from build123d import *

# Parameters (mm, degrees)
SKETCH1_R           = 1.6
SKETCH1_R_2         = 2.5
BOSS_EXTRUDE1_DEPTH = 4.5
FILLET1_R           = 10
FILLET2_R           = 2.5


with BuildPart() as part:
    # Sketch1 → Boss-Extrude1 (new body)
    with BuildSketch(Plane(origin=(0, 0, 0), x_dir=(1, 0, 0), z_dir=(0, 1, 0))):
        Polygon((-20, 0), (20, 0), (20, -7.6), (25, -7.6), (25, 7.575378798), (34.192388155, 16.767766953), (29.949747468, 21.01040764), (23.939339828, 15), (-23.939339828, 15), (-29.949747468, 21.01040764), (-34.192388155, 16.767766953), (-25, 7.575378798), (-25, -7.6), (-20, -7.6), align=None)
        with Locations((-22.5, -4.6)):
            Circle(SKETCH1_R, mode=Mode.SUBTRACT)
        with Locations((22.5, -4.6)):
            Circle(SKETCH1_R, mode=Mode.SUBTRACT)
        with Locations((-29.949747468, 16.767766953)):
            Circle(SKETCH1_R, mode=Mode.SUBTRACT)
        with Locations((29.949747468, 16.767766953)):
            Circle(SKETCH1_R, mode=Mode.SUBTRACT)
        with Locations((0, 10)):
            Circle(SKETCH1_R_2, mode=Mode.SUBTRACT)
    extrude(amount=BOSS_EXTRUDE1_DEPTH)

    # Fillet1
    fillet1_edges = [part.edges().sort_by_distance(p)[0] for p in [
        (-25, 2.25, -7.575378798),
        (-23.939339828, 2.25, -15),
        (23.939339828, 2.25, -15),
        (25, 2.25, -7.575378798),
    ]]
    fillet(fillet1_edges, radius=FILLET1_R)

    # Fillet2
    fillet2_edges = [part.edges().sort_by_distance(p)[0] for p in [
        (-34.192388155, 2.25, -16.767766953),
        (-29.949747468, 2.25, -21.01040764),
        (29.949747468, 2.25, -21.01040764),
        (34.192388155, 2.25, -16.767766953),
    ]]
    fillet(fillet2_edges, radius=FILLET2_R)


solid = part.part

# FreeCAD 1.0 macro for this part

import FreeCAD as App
import Part
import Sketcher

V = App.Vector


def edges_at(feature, points):
    """Names of the edges that pass closest to the given points."""
    edges = feature.Shape.Edges
    near = lambda p: min(range(len(edges)), key=lambda i: edges[i].distToShape(Part.Vertex(*p))[0])
    return sorted({f"Edge{near(p) + 1}" for p in points})


def add_polygon(sketch, points):
    """Adds a closed chain of lines whose ends are joined by coincident constraints."""
    first, n = sketch.GeometryCount, len(points)
    for a, b in zip(points, points[1:] + points[:1]):
        sketch.addGeometry(Part.LineSegment(App.Vector(*a, 0), App.Vector(*b, 0)), False)
    for i in range(n):
        sketch.addConstraint(Sketcher.Constraint("Coincident", first + i, 2, first + (i + 1) % n, 1))

doc = App.newDocument("Part")
body = doc.addObject("PartDesign::Body", "Body")

sketch1 = body.newObject("Sketcher::SketchObject", "Sketch")
sketch1.AttachmentSupport = (doc.getObject("XZ_Plane"), [""])
sketch1.MapMode = "FlatFace"
add_polygon(sketch1, [(-20, 0), (20, 0), (20, 7.6), (25, 7.6), (25, -7.6), (34.2, -16.8), (29.9, -21), (23.9, -15), (-23.9, -15), (-29.9, -21), (-34.2, -16.8), (-25, -7.6), (-25, 7.6), (-20, 7.6)])
sketch1.addGeometry(Part.Circle(V(-22.5, 4.6, 0), V(0, 0, 1), 1.6), False)
sketch1.addGeometry(Part.Circle(V(22.5, 4.6, 0), V(0, 0, 1), 1.6), False)
sketch1.addGeometry(Part.Circle(V(0, -10, 0), V(0, 0, 1), 2.5), False)
sketch1.addGeometry(Part.Circle(V(-29.9, -16.8, 0), V(0, 0, 1), 1.6), False)
sketch1.addGeometry(Part.Circle(V(29.9, -16.8, 0), V(0, 0, 1), 1.6), False)
sketch1.addConstraint([
    Sketcher.Constraint("Horizontal", 0),
    Sketcher.Constraint("Vertical", 1),
    Sketcher.Constraint("Horizontal", 2),
    Sketcher.Constraint("Vertical", 3),
    Sketcher.Constraint("Horizontal", 7),
    Sketcher.Constraint("Vertical", 11),
    Sketcher.Constraint("Horizontal", 12),
    Sketcher.Constraint("Vertical", 13),
    Sketcher.Constraint("Equal", 14, 15),
    Sketcher.Constraint("Equal", 15, 17),
    Sketcher.Constraint("Equal", 17, 18),
    Sketcher.Constraint("Symmetric", 0, 2, 13, 2, -1, 1),
    Sketcher.Constraint("Symmetric", 14, 3, 15, 3, -2),
    Sketcher.Constraint("Symmetric", 17, 3, 18, 3, -2),
    Sketcher.Constraint("Symmetric", 5, 2, 8, 2, -2),
    Sketcher.Constraint("Symmetric", 4, 2, 9, 2, -2),
    Sketcher.Constraint("Symmetric", 3, 2, 10, 2, -2),
    Sketcher.Constraint("PointOnObject", 16, 3, -2),
    Sketcher.Constraint("Perpendicular", 4, 5),
    Sketcher.Constraint("Perpendicular", 5, 6),
    Sketcher.Constraint("Perpendicular", 6, 8),
    Sketcher.Constraint("Perpendicular", 8, 9),
    Sketcher.Constraint("Horizontal", 18, 3, 4, 2),
    Sketcher.Constraint("Horizontal", 2, 2, 11, 2),
    Sketcher.Constraint("Vertical", 18, 3, 5, 2),
    Sketcher.Constraint("Diameter", 16, 5.0),
    Sketcher.Constraint("Diameter", 14, 3.2),
    Sketcher.Constraint("DistanceX", 0, 1, 0, 2, 40.0),
    Sketcher.Constraint("DistanceX", 2, 1, 2, 2, 5.0),
    Sketcher.Constraint("Distance", 4, 13.0),
    Sketcher.Constraint("Distance", 5, 6.0),
    Sketcher.Constraint("DistanceY", 1, 1, 1, 2, 7.6),
    Sketcher.Constraint("DistanceY", 16, 3, -1, 1, 10.0),
    Sketcher.Constraint("DistanceY", 6, 2, -1, 1, 15.0),
    Sketcher.Constraint("DistanceX", 14, 3, 15, 3, 45.0),
    Sketcher.Constraint("DistanceY", 15, 3, 1, 2, 3.0),
    Sketcher.Constraint("Distance", 6, 8.5),
])
pad1 = body.newObject("PartDesign::Pad", "Pad")
pad1.Profile = sketch1
pad1.Length = 4.5
pad1.Reversed = True
doc.recompute()

fillet = body.newObject("PartDesign::Fillet", "Fillet")
fillet.Base = (pad1, edges_at(pad1, [
    (-25, 2.25, -7.575),
    (-23.939, 2.25, -15),
    (23.939, 2.25, -15),
    (25, 2.25, -7.575),
]))
fillet.Radius = 10
doc.recompute()

fillet2 = body.newObject("PartDesign::Fillet", "Fillet001")
fillet2.Base = (fillet, edges_at(fillet, [
    (-34.192, 2.25, -16.768),
    (-29.95, 2.25, -21.01),
    (29.95, 2.25, -21.01),
    (34.192, 2.25, -16.768),
]))
fillet2.Radius = 2.5

doc.recompute()
